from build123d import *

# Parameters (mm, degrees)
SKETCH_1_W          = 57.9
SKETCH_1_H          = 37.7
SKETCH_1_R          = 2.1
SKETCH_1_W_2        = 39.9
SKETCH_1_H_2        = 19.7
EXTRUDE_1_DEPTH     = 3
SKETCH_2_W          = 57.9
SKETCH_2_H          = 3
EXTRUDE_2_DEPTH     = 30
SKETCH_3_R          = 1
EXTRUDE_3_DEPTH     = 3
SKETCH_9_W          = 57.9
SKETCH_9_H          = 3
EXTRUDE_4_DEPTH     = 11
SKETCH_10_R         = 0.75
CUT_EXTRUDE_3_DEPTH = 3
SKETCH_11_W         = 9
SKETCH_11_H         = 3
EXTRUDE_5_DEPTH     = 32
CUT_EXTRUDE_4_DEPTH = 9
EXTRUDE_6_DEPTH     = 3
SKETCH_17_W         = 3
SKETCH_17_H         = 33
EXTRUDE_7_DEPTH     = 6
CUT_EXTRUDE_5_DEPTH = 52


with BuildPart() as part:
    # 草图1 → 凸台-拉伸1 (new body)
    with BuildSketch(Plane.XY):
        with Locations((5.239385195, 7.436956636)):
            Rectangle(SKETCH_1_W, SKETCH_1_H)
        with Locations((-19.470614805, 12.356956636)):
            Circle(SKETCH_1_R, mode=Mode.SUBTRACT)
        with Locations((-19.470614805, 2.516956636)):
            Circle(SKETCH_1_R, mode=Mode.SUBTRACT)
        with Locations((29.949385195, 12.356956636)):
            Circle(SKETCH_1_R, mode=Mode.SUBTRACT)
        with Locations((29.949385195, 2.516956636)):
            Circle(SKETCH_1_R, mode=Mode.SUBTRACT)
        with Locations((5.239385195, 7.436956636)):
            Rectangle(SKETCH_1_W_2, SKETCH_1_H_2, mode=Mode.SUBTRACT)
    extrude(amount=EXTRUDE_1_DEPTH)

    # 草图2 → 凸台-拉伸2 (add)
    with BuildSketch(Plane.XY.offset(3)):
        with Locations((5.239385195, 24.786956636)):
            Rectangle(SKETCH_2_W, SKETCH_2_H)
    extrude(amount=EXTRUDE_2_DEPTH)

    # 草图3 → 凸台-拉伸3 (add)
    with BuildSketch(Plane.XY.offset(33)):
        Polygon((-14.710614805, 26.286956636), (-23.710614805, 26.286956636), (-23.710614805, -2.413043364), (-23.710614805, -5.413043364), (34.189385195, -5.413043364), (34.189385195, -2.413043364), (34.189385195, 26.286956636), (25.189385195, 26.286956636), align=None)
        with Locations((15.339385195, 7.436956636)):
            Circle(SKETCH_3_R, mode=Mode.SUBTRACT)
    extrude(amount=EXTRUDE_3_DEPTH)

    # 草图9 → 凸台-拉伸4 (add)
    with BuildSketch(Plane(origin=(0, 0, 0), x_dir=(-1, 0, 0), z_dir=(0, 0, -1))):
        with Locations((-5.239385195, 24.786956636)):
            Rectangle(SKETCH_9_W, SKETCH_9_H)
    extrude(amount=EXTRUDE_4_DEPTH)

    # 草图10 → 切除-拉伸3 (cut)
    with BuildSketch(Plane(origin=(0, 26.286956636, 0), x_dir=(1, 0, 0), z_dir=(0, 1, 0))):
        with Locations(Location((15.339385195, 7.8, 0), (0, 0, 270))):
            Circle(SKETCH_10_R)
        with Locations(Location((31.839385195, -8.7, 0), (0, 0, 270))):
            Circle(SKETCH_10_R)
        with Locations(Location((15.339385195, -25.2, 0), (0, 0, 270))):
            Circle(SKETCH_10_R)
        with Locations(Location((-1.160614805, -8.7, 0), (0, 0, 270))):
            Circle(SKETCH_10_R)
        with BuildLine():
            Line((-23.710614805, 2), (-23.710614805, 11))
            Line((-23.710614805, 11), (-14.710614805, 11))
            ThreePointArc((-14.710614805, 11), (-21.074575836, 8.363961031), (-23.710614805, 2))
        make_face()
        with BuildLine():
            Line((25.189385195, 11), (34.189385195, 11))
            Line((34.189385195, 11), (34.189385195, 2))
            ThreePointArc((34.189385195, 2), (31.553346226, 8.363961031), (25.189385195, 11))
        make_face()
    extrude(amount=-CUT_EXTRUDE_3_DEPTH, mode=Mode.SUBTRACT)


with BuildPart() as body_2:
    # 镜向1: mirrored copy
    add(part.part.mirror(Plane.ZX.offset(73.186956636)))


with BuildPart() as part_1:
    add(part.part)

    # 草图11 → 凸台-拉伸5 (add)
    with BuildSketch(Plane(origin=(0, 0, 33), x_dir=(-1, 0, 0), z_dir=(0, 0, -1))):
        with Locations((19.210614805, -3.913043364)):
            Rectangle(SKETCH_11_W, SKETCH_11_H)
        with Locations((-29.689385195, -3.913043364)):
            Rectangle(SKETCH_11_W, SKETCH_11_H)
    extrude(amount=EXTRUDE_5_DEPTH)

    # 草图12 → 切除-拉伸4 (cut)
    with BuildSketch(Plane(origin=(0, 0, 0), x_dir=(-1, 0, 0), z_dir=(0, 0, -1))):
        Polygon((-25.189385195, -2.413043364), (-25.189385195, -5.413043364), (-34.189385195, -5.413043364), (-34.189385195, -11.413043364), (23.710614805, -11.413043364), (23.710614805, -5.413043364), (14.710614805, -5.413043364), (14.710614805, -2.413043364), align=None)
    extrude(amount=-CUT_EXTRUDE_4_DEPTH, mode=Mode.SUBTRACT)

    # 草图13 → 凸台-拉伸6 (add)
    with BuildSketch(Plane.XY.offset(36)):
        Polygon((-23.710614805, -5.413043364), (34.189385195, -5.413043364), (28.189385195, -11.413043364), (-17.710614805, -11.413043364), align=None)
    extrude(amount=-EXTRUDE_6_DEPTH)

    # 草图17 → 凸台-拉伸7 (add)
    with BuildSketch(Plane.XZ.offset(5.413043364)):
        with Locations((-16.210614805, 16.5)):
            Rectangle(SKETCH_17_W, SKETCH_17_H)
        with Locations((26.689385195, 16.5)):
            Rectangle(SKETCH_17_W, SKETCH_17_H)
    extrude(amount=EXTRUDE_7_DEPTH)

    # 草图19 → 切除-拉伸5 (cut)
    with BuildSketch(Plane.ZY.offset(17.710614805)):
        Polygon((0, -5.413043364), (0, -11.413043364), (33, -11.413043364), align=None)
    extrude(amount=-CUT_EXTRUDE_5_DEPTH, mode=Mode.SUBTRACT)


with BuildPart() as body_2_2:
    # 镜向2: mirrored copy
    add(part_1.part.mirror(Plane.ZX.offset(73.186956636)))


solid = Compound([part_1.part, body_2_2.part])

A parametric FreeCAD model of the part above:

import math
import FreeCAD as App
import Part
import Sketcher


def add_polygon(sketch, points):
    """Adds a closed chain of lines whose ends are joined by coincident constraints."""
    first, n = sketch.GeometryCount, len(points)
    for a, b in zip(points, points[1:] + points[:1]):
        sketch.addGeometry(Part.LineSegment(App.Vector(*a, 0), App.Vector(*b, 0)), False)
    for i in range(n):
        sketch.addConstraint(Sketcher.Constraint("Coincident", first + i, 2, first + (i + 1) % n, 1))

doc = App.newDocument("Part")
body = doc.addObject("PartDesign::Body", "Body")

# Sketch on XY plane
sketch1 = body.newObject("Sketcher::SketchObject", "Sketch")
sketch1.AttachmentSupport = (doc.getObject("XY_Plane"), [""])
sketch1.MapMode = "FlatFace"
add_polygon(sketch1, [(-23.7, 26.3), (-23.7, -11.4), (34.2, -11.4), (34.2, 26.3)])  # lines 0-3
sketch1.addGeometry(Part.Circle(App.Vector(-19.5, 2.5, 0), App.Vector(0, 0, 1), 2.1), False)  # 4
sketch1.addGeometry(Part.Circle(App.Vector(29.9, 2.5, 0), App.Vector(0, 0, 1), 2.1), False)  # 5
sketch1.addGeometry(Part.Circle(App.Vector(-19.5, 12.4, 0), App.Vector(0, 0, 1), 2.1), False)  # 6
add_polygon(sketch1, [(25.2, -2.4), (-14.7, -2.4), (-14.7, 17.3), (25.2, 17.3)])  # lines 7-10
sketch1.addGeometry(Part.Circle(App.Vector(29.9, 12.4, 0), App.Vector(0, 0, 1), 2.1), False)  # 11
sketch1.addConstraint(Sketcher.Constraint("Vertical", 0))
sketch1.addConstraint(Sketcher.Constraint("Horizontal", 1))
sketch1.addConstraint(Sketcher.Constraint("Vertical", 2))
sketch1.addConstraint(Sketcher.Constraint("Horizontal", 3))
sketch1.addConstraint(Sketcher.Constraint("Horizontal", 7))
sketch1.addConstraint(Sketcher.Constraint("Vertical", 8))
sketch1.addConstraint(Sketcher.Constraint("Horizontal", 9))
sketch1.addConstraint(Sketcher.Constraint("Vertical", 10))
sketch1.addConstraint(Sketcher.Constraint("Equal", 4, 5))
sketch1.addConstraint(Sketcher.Constraint("Equal", 5, 6))
sketch1.addConstraint(Sketcher.Constraint("Equal", 6, 11))
sketch1.addConstraint(Sketcher.Constraint("Horizontal", 4, 3, 5, 3))
sketch1.addConstraint(Sketcher.Constraint("Horizontal", 6, 3, 11, 3))
sketch1.addConstraint(Sketcher.Constraint("Vertical", 4, 3, 6, 3))
sketch1.addConstraint(Sketcher.Constraint("Vertical", 5, 3, 11, 3))
sketch1.addConstraint(Sketcher.Constraint("Diameter", 4, 4.2))
sketch1.addConstraint(Sketcher.Constraint("DistanceX", 1, 1, 1, 2, 57.9))
sketch1.addConstraint(Sketcher.Constraint("DistanceX", 7, 2, 7, 1, 39.9))
sketch1.addConstraint(Sketcher.Constraint("DistanceY", 0, 2, 0, 1, 37.7))
sketch1.addConstraint(Sketcher.Constraint("DistanceY", 8, 1, 8, 2, 19.7))
sketch1.addConstraint(Sketcher.Constraint("DistanceX", 0, 2, 7, 2, 9.0))
sketch1.addConstraint(Sketcher.Constraint("DistanceY", 0, 2, 7, 2, 9.0))
sketch1.addConstraint(Sketcher.Constraint("DistanceX", 4, 3, 5, 3, 49.42))
sketch1.addConstraint(Sketcher.Constraint("DistanceY", 4, 3, 6, 3, 9.84))
sketch1.addConstraint(Sketcher.Constraint("DistanceX", 0, 2, 4, 3, 4.24))
sketch1.addConstraint(Sketcher.Constraint("DistanceY", 0, 2, 4, 3, 13.93))
sketch1.addConstraint(Sketcher.Constraint("DistanceX", 4, 3, -1, 1, 19.470615))
sketch1.addConstraint(Sketcher.Constraint("DistanceY", -1, 1, 4, 3, 2.516957))
pad1 = body.newObject("PartDesign::Pad", "Pad")
pad1.Profile = sketch1
pad1.Length = 3

# Sketch on XY plane
sketch2 = body.newObject("Sketcher::SketchObject", "Sketch001")
sketch2.AttachmentSupport = (doc.getObject("XY_Plane"), [""])
sketch2.MapMode = "FlatFace"
sketch2.AttachmentOffset = App.Placement(App.Vector(0, 0, 3), App.Rotation())
add_polygon(sketch2, [(-23.7, 26.3), (-23.7, 23.3), (34.2, 23.3), (34.2, 26.3)])  # lines 0-3
sketch2.addConstraint(Sketcher.Constraint("Vertical", 0))
sketch2.addConstraint(Sketcher.Constraint("Horizontal", 1))
sketch2.addConstraint(Sketcher.Constraint("Vertical", 2))
sketch2.addConstraint(Sketcher.Constraint("Horizontal", 3))
sketch2.addConstraint(Sketcher.Constraint("DistanceY", 0, 2, 0, 1, 3.0))
sketch2.addConstraint(Sketcher.Constraint("DistanceX", 1, 1, 1, 2, 57.9))
sketch2.addConstraint(Sketcher.Constraint("DistanceX", 0, 2, -1, 1, 23.710615))
sketch2.addConstraint(Sketcher.Constraint("DistanceY", -1, 1, 0, 2, 23.286957))
pad2 = body.newObject("PartDesign::Pad", "Pad001")
pad2.Profile = sketch2
pad2.Length = 30

# Sketch on XY plane
sketch3 = body.newObject("Sketcher::SketchObject", "Sketch002")
sketch3.AttachmentSupport = (doc.getObject("XY_Plane"), [""])
sketch3.MapMode = "FlatFace"
sketch3.AttachmentOffset = App.Placement(App.Vector(0, 0, 33), App.Rotation())
add_polygon(sketch3, [(-23.7, 26.3), (-23.7, -5.4), (34.2, -5.4), (34.2, 26.3)])  # lines 0-3
sketch3.addGeometry(Part.Circle(App.Vector(15.3, 7.4, 0), App.Vector(0, 0, 1), 1), False)  # 4
sketch3.addConstraint(Sketcher.Constraint("Vertical", 0))
sketch3.addConstraint(Sketcher.Constraint("Horizontal", 1))
sketch3.addConstraint(Sketcher.Constraint("Vertical", 2))
sketch3.addConstraint(Sketcher.Constraint("Horizontal", 3))
sketch3.addConstraint(Sketcher.Constraint("Diameter", 4, 2.0))
sketch3.addConstraint(Sketcher.Constraint("DistanceX", 1, 1, 1, 2, 57.9))
sketch3.addConstraint(Sketcher.Constraint("DistanceY", 0, 2, 0, 1, 31.7))
sketch3.addConstraint(Sketcher.Constraint("DistanceX", 0, 2, 4, 3, 39.05))
sketch3.addConstraint(Sketcher.Constraint("DistanceY", 0, 2, 4, 3, 12.85))
sketch3.addConstraint(Sketcher.Constraint("DistanceX", -1, 1, 4, 3, 15.339385))
sketch3.addConstraint(Sketcher.Constraint("DistanceY", -1, 1, 4, 3, 7.436957))
pad3 = body.newObject("PartDesign::Pad", "Pad002")
pad3.Profile = sketch3
pad3.Length = 3

# Sketch on XY plane
sketch4 = body.newObject("Sketcher::SketchObject", "Sketch003")
sketch4.AttachmentSupport = (doc.getObject("XY_Plane"), [""])
sketch4.MapMode = "FlatFace"
add_polygon(sketch4, [(34.2, 26.3), (34.2, 23.3), (-23.7, 23.3), (-23.7, 26.3)])  # lines 0-3
sketch4.addConstraint(Sketcher.Constraint("Vertical", 0))
sketch4.addConstraint(Sketcher.Constraint("Horizontal", 1))
sketch4.addConstraint(Sketcher.Constraint("Vertical", 2))
sketch4.addConstraint(Sketcher.Constraint("Horizontal", 3))
sketch4.addConstraint(Sketcher.Constraint("DistanceY", 0, 2, 0, 1, 3.0))
sketch4.addConstraint(Sketcher.Constraint("DistanceX", 1, 2, 1, 1, 57.9))
sketch4.addConstraint(Sketcher.Constraint("DistanceX", -1, 1, 0, 2, 34.189385))
sketch4.addConstraint(Sketcher.Constraint("DistanceY", -1, 1, 0, 2, 23.286957))
pad4 = body.newObject("PartDesign::Pad", "Pad003")
pad4.Profile = sketch4
pad4.Length = 11
pad4.Reversed = True

# Sketch on XZ plane
sketch5 = body.newObject("Sketcher::SketchObject", "Sketch004")
sketch5.AttachmentSupport = (doc.getObject("XZ_Plane"), [""])
sketch5.MapMode = "FlatFace"
sketch5.AttachmentOffset = App.Placement(App.Vector(0, 0, -26.286957), App.Rotation())
sketch5.addGeometry(Part.Circle(App.Vector(15.3, -7.8, 0), App.Vector(0, 0, 1), 0.8), False)
sketch5.addGeometry(Part.Circle(App.Vector(31.8, 8.7, 0), App.Vector(0, 0, 1), 0.8), False)
sketch5.addGeometry(Part.Circle(App.Vector(15.3, 25.2, 0), App.Vector(0, 0, 1), 0.8), False)
sketch5.addGeometry(Part.Circle(App.Vector(-1.2, 8.7, 0), App.Vector(0, 0, 1), 0.8), False)
sketch5.addGeometry(Part.LineSegment(App.Vector(-23.7, -11, 0), App.Vector(-23.7, -2, 0)), False)
sketch5.addGeometry(Part.ArcOfCircle(Part.Circle(App.Vector(-14.7, -2, 0), App.Vector(0, 0, 1), 9), math.radians(180), math.radians(270)), False)
sketch5.addGeometry(Part.LineSegment(App.Vector(-14.7, -11, 0), App.Vector(-23.7, -11, 0)), False)
sketch5.addGeometry(Part.LineSegment(App.Vector(34.2, -11, 0), App.Vector(25.2, -11, 0)), False)
sketch5.addGeometry(Part.ArcOfCircle(Part.Circle(App.Vector(25.2, -2, 0), App.Vector(0, 0, 1), 9), math.radians(-90), math.radians(0)), False)
sketch5.addGeometry(Part.LineSegment(App.Vector(34.2, -2, 0), App.Vector(34.2, -11, 0)), False)
sketch5.addConstraint(Sketcher.Constraint("Tangent", 4, 2, 5, 1))
sketch5.addConstraint(Sketcher.Constraint("Tangent", 5, 2, 6, 1))
sketch5.addConstraint(Sketcher.Constraint("Coincident", 6, 2, 4, 1))
sketch5.addConstraint(Sketcher.Constraint("Tangent", 7, 2, 8, 1))
sketch5.addConstraint(Sketcher.Constraint("Tangent", 8, 2, 9, 1))
sketch5.addConstraint(Sketcher.Constraint("Coincident", 9, 2, 7, 1))
sketch5.addConstraint(Sketcher.Constraint("Vertical", 4))
sketch5.addConstraint(Sketcher.Constraint("Horizontal", 6))
sketch5.addConstraint(Sketcher.Constraint("Horizontal", 7))
sketch5.addConstraint(Sketcher.Constraint("Vertical", 9))
sketch5.addConstraint(Sketcher.Constraint("Equal", 0, 1))
sketch5.addConstraint(Sketcher.Constraint("Equal", 1, 2))
sketch5.addConstraint(Sketcher.Constraint("Equal", 2, 3))
sketch5.addConstraint(Sketcher.Constraint("Equal", 5, 8))
sketch5.addConstraint(Sketcher.Constraint("Horizontal", 1, 3, 3, 3))
sketch5.addConstraint(Sketcher.Constraint("Horizontal", 5, 3, 8, 3))
sketch5.addConstraint(Sketcher.Constraint("Vertical", 0, 3, 2, 3))
sketch5.addConstraint(Sketcher.Constraint("Radius", 5, 9.0))
sketch5.addConstraint(Sketcher.Constraint("Diameter", 0, 1.5))
sketch5.addConstraint(Sketcher.Constraint("DistanceY", 5, 3, -1, 1, 2.0))
sketch5.addConstraint(Sketcher.Constraint("DistanceY", 0, 3, 2, 3, 33.0))
sketch5.addConstraint(Sketcher.Constraint("DistanceX", 3, 3, 1, 3, 33.0))
sketch5.addConstraint(Sketcher.Constraint("DistanceY", 0, 3, -1, 1, 7.8))
sketch5.addConstraint(Sketcher.Constraint("DistanceY", -1, 1, 1, 3, 8.7))
sketch5.addConstraint(Sketcher.Constraint("DistanceX", 0, 3, 1, 3, 16.5))
sketch5.addConstraint(Sketcher.Constraint("DistanceX", 5, 3, 8, 3, 39.9))
sketch5.addConstraint(Sketcher.Constraint("DistanceX", 5, 3, 3, 3, 13.55))
sketch5.addConstraint(Sketcher.Constraint("DistanceX", -1, 1, 0, 3, 15.339385))
pocket1 = body.newObject("PartDesign::Pocket", "Pocket")
pocket1.Profile = sketch5
pocket1.Length = 3
pocket1.Reversed = True
body2 = doc.addObject("PartDesign::Body", "Body001")
doc.recompute()

mirroring = doc.addObject("Part::Mirroring", "Mirroring")
mirroring.Source = body
mirroring.Base = App.Vector(0, 73.186957, 0)
mirroring.Normal = App.Vector(0, 1, 0)
body2.BaseFeature = mirroring
doc.recompute()

# Sketch on XY plane
sketch6 = body.newObject("Sketcher::SketchObject", "Sketch005")
sketch6.AttachmentSupport = (doc.getObject("XY_Plane"), [""])
sketch6.MapMode = "FlatFace"
sketch6.AttachmentOffset = App.Placement(App.Vector(0, 0, 33), App.Rotation())
add_polygon(sketch6, [(-14.7, -2.4), (-14.7, -5.4), (-23.7, -5.4), (-23.7, -2.4)])  # lines 0-3
add_polygon(sketch6, [(34.2, -2.4), (34.2, -5.4), (25.2, -5.4), (25.2, -2.4)])  # lines 4-7
sketch6.addConstraint(Sketcher.Constraint("Vertical", 0))
sketch6.addConstraint(Sketcher.Constraint("Horizontal", 1))
sketch6.addConstraint(Sketcher.Constraint("Vertical", 2))
sketch6.addConstraint(Sketcher.Constraint("Horizontal", 3))
sketch6.addConstraint(Sketcher.Constraint("Vertical", 4))
sketch6.addConstraint(Sketcher.Constraint("Horizontal", 5))
sketch6.addConstraint(Sketcher.Constraint("Vertical", 6))
sketch6.addConstraint(Sketcher.Constraint("Horizontal", 7))
sketch6.addConstraint(Sketcher.Constraint("Horizontal", 1, 2, 4, 2))
sketch6.addConstraint(Sketcher.Constraint("Horizontal", 3, 2, 6, 2))
sketch6.addConstraint(Sketcher.Constraint("Equal", 3, 5))
sketch6.addConstraint(Sketcher.Constraint("DistanceX", 1, 2, 1, 1, 9.0))
sketch6.addConstraint(Sketcher.Constraint("DistanceY", 0, 2, 0, 1, 3.0))
sketch6.addConstraint(Sketcher.Constraint("DistanceX", 0, 2, 4, 2, 48.9))
sketch6.addConstraint(Sketcher.Constraint("DistanceX", 0, 2, -1, 1, 14.710615))
sketch6.addConstraint(Sketcher.Constraint("DistanceY", 0, 2, -1, 1, 5.413043))
pad5 = body.newObject("PartDesign::Pad", "Pad004")
pad5.Profile = sketch6
pad5.Length = 32
pad5.Reversed = True

# Sketch on XY plane
sketch7 = body.newObject("Sketcher::SketchObject", "Sketch006")
sketch7.AttachmentSupport = (doc.getObject("XY_Plane"), [""])
sketch7.MapMode = "FlatFace"
add_polygon(sketch7, [(25.2, -2.4), (25.2, -5.4), (34.2, -5.4), (34.2, -11.4), (-23.7, -11.4), (-23.7, -5.4), (-14.7, -5.4), (-14.7, -2.4)])  # lines 0-7
sketch7.addConstraint(Sketcher.Constraint("Vertical", 0))
sketch7.addConstraint(Sketcher.Constraint("Horizontal", 1))
sketch7.addConstraint(Sketcher.Constraint("Vertical", 2))
sketch7.addConstraint(Sketcher.Constraint("Horizontal", 3))
sketch7.addConstraint(Sketcher.Constraint("Vertical", 4))
sketch7.addConstraint(Sketcher.Constraint("Horizontal", 5))
sketch7.addConstraint(Sketcher.Constraint("Vertical", 6))
sketch7.addConstraint(Sketcher.Constraint("Horizontal", 7))
sketch7.addConstraint(Sketcher.Constraint("Horizontal", 1, 2, 4, 2))
sketch7.addConstraint(Sketcher.Constraint("Equal", 1, 5))
sketch7.addConstraint(Sketcher.Constraint("DistanceX", 1, 1, 1, 2, 9.0))
sketch7.addConstraint(Sketcher.Constraint("DistanceY", 0, 2, 0, 1, 3.0))
sketch7.addConstraint(Sketcher.Constraint("DistanceY", 2, 2, 2, 1, 6.0))
sketch7.addConstraint(Sketcher.Constraint("DistanceX", 3, 2, 3, 1, 57.9))
sketch7.addConstraint(Sketcher.Constraint("DistanceX", -1, 1, 0, 2, 25.189385))
sketch7.addConstraint(Sketcher.Constraint("DistanceY", 0, 2, -1, 1, 5.413043))
pocket2 = body.newObject("PartDesign::Pocket", "Pocket001")
pocket2.Profile = sketch7
pocket2.Length = 9
pocket2.Reversed = True

# Sketch on XY plane
sketch8 = body.newObject("Sketcher::SketchObject", "Sketch007")
sketch8.AttachmentSupport = (doc.getObject("XY_Plane"), [""])
sketch8.MapMode = "FlatFace"
sketch8.AttachmentOffset = App.Placement(App.Vector(0, 0, 36), App.Rotation())
add_polygon(sketch8, [(34, -5), (-24, -5), (-18, -11), (28, -11)])  # lines 0-3
sketch8.addConstraint(Sketcher.Constraint("Horizontal", 0))
sketch8.addConstraint(Sketcher.Constraint("Horizontal", 2))
sketch8.addConstraint(Sketcher.Constraint("Perpendicular", 1, 3))
sketch8.addConstraint(Sketcher.Constraint("Equal", 1, 3))
sketch8.addConstraint(Sketcher.Constraint("DistanceX", 0, 2, 0, 1, 57.9))
sketch8.addConstraint(Sketcher.Constraint("DistanceX", 2, 1, 2, 2, 45.9))
sketch8.addConstraint(Sketcher.Constraint("DistanceX", 0, 2, -1, 1, 23.710615))
sketch8.addConstraint(Sketcher.Constraint("DistanceY", 0, 2, -1, 1, 5.413043))
pad6 = body.newObject("PartDesign::Pad", "Pad005")
pad6.Profile = sketch8
pad6.Length = 3
pad6.Reversed = True

# Sketch on XZ plane
sketch9 = body.newObject("Sketcher::SketchObject", "Sketch008")
sketch9.AttachmentSupport = (doc.getObject("XZ_Plane"), [""])
sketch9.MapMode = "FlatFace"
sketch9.AttachmentOffset = App.Placement(App.Vector(0, 0, 5.413043), App.Rotation())
add_polygon(sketch9, [(-17.7, 33), (-17.7, 0), (-14.7, 0), (-14.7, 33)])  # lines 0-3
add_polygon(sketch9, [(25.2, 33), (25.2, 0), (28.2, 0), (28.2, 33)])  # lines 4-7
sketch9.addConstraint(Sketcher.Constraint("Vertical", 0))
sketch9.addConstraint(Sketcher.Constraint("Horizontal", 1))
sketch9.addConstraint(Sketcher.Constraint("Vertical", 2))
sketch9.addConstraint(Sketcher.Constraint("Horizontal", 3))
sketch9.addConstraint(Sketcher.Constraint("Vertical", 4))
sketch9.addConstraint(Sketcher.Constraint("Horizontal", 5))
sketch9.addConstraint(Sketcher.Constraint("Vertical", 6))
sketch9.addConstraint(Sketcher.Constraint("Horizontal", 7))
sketch9.addConstraint(Sketcher.Constraint("PointOnObject", 0, 2, -1))
sketch9.addConstraint(Sketcher.Constraint("PointOnObject", 4, 2, -1))
sketch9.addConstraint(Sketcher.Constraint("Horizontal", 3, 2, 6, 2))
sketch9.addConstraint(Sketcher.Constraint("Equal", 3, 5))
sketch9.addConstraint(Sketcher.Constraint("DistanceX", 1, 1, 1, 2, 3.0))
sketch9.addConstraint(Sketcher.Constraint("DistanceY", 0, 2, 0, 1, 33.0))
sketch9.addConstraint(Sketcher.Constraint("DistanceX", 1, 2, 4, 2, 39.9))
sketch9.addConstraint(Sketcher.Constraint("DistanceX", 0, 2, -1, 1, 17.710615))
pad7 = body.newObject("PartDesign::Pad", "Pad006")
pad7.Profile = sketch9
pad7.Length = 6

# Sketch on YZ plane
sketch10 = body.newObject("Sketcher::SketchObject", "Sketch009")
sketch10.AttachmentSupport = (doc.getObject("YZ_Plane"), [""])
sketch10.MapMode = "FlatFace"
sketch10.AttachmentOffset = App.Placement(App.Vector(0, 0, -17.710615), App.Rotation())
add_polygon(sketch10, [(-5, 0), (-11, 0), (-11, 33)])  # lines 0-2
sketch10.addConstraint(Sketcher.Constraint("Horizontal", 0))
sketch10.addConstraint(Sketcher.Constraint("Vertical", 1))
sketch10.addConstraint(Sketcher.Constraint("PointOnObject", 0, 2, -1))
sketch10.addConstraint(Sketcher.Constraint("DistanceX", 0, 2, 0, 1, 6.0))
sketch10.addConstraint(Sketcher.Constraint("DistanceY", 1, 1, 1, 2, 33.0))
sketch10.addConstraint(Sketcher.Constraint("DistanceX", 0, 2, -1, 1, 11.413043))
pocket3 = body.newObject("PartDesign::Pocket", "Pocket002")
pocket3.Profile = sketch10
pocket3.Length = 52
pocket3.Reversed = True
body3 = doc.addObject("PartDesign::Body", "Body002")
doc.recompute()

mirroring2 = doc.addObject("Part::Mirroring", "Mirroring001")
mirroring2.Source = body
mirroring2.Base = App.Vector(0, 73.186957, 0)
mirroring2.Normal = App.Vector(0, 1, 0)
body3.BaseFeature = mirroring2
doc.recompute()
body2.Visibility = False
mirroring.Visibility = False
mirroring2.Visibility = False

doc.recompute()
